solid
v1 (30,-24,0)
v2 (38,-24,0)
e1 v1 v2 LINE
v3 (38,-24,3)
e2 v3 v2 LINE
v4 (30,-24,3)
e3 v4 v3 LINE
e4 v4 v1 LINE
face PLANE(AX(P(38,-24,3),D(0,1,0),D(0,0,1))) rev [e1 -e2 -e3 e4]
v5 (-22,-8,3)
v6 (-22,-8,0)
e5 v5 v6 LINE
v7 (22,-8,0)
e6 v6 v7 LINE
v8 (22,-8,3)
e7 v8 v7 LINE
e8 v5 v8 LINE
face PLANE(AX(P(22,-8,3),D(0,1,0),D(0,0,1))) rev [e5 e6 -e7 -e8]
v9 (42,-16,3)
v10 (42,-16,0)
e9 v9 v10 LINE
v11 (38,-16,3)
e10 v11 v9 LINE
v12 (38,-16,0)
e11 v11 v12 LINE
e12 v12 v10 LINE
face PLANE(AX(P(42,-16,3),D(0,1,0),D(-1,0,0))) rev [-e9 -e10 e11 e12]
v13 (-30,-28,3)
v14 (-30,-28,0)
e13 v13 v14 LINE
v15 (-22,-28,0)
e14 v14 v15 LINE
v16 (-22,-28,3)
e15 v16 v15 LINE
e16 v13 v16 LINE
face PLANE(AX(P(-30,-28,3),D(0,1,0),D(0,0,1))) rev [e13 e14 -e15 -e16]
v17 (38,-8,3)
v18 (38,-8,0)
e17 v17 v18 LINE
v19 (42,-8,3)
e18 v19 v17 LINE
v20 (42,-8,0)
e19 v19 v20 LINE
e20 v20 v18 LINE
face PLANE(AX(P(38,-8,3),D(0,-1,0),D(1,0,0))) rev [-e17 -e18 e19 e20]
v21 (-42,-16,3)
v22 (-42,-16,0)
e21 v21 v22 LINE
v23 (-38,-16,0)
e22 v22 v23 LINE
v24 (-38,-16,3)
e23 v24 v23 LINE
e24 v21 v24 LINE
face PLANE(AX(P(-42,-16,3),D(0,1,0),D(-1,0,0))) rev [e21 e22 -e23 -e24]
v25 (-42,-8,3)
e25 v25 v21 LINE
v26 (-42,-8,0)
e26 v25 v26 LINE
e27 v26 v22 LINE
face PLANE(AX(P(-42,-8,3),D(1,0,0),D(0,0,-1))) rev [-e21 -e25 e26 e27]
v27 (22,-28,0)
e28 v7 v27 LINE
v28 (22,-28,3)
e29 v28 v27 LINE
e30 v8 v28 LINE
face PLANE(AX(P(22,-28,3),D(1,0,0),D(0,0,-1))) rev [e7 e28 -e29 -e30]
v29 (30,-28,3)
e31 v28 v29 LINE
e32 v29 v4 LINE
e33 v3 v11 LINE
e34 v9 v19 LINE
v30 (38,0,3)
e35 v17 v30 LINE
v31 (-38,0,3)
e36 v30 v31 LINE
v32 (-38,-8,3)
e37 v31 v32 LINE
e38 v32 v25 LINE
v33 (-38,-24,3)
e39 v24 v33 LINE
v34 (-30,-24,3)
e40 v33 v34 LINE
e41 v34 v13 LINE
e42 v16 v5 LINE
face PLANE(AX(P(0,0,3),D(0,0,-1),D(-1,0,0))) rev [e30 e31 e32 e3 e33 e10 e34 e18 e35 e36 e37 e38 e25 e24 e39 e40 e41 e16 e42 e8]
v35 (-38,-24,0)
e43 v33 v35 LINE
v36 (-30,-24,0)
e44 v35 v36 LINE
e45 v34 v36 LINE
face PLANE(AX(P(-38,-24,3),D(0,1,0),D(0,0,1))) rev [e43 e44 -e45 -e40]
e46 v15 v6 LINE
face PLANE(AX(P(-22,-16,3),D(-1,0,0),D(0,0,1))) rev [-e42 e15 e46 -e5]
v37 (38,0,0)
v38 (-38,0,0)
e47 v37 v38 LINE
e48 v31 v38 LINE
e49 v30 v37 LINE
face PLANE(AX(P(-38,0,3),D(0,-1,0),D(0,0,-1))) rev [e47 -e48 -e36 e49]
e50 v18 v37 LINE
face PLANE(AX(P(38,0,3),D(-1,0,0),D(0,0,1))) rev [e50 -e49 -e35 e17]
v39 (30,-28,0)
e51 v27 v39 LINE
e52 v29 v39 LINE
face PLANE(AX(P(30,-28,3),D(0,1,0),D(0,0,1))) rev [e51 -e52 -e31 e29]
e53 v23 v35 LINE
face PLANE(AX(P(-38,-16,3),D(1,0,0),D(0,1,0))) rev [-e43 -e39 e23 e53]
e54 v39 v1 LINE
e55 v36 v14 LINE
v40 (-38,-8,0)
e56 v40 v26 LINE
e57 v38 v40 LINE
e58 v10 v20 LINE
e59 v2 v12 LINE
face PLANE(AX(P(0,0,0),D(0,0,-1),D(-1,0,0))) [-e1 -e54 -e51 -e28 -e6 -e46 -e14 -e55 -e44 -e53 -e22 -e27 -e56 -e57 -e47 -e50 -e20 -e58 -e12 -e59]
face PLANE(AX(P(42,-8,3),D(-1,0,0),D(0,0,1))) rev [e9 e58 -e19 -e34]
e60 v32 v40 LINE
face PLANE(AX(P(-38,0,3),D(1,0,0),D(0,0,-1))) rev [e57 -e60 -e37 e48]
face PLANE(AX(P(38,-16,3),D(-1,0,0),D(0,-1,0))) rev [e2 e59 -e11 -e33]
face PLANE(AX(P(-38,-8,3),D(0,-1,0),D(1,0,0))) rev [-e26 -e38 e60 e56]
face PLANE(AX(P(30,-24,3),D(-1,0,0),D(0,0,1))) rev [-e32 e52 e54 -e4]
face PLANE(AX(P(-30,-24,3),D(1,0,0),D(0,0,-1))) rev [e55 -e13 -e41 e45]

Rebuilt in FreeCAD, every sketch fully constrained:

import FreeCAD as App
import Part
import Sketcher
from FreeCAD import Vector

doc = App.newDocument("Part")
body = doc.addObject("PartDesign::Body", "Body")

sketch1 = body.newObject("Sketcher::SketchObject", "Sketch")
sketch1.AttachmentSupport = (doc.getObject("XY_Plane"), [""])
sketch1.MapMode = "FlatFace"
sketch1.addGeometry(Part.LineSegment(Vector(38, 0, 0), Vector(-38, 0, 0)), False)
sketch1.addGeometry(Part.LineSegment(Vector(-38, 0, 0), Vector(-38, -8, 0)), False)
sketch1.addGeometry(Part.LineSegment(Vector(-38, -8, 0), Vector(-42, -8, 0)), False)
sketch1.addGeometry(Part.LineSegment(Vector(-42, -8, 0), Vector(-42, -16, 0)), False)
sketch1.addGeometry(Part.LineSegment(Vector(-42, -16, 0), Vector(-38, -16, 0)), False)
sketch1.addGeometry(Part.LineSegment(Vector(-38, -16, 0), Vector(-38, -24, 0)), False)
sketch1.addGeometry(Part.LineSegment(Vector(-38, -24, 0), Vector(-30, -24, 0)), False)
sketch1.addGeometry(Part.LineSegment(Vector(-30, -24, 0), Vector(-30, -28, 0)), False)
sketch1.addGeometry(Part.LineSegment(Vector(-30, -28, 0), Vector(-22, -28, 0)), False)
sketch1.addGeometry(Part.LineSegment(Vector(-22, -28, 0), Vector(-22, -8, 0)), False)
sketch1.addGeometry(Part.LineSegment(Vector(-22, -8, 0), Vector(22, -8, 0)), False)
sketch1.addGeometry(Part.LineSegment(Vector(22, -8, 0), Vector(22, -28, 0)), False)
sketch1.addGeometry(Part.LineSegment(Vector(22, -28, 0), Vector(30, -28, 0)), False)
sketch1.addGeometry(Part.LineSegment(Vector(30, -28, 0), Vector(30, -24, 0)), False)
sketch1.addGeometry(Part.LineSegment(Vector(30, -24, 0), Vector(38, -24, 0)), False)
sketch1.addGeometry(Part.LineSegment(Vector(38, -24, 0), Vector(38, -16, 0)), False)
sketch1.addGeometry(Part.LineSegment(Vector(38, -16, 0), Vector(42, -16, 0)), False)
sketch1.addGeometry(Part.LineSegment(Vector(42, -16, 0), Vector(42, -8, 0)), False)
sketch1.addGeometry(Part.LineSegment(Vector(42, -8, 0), Vector(38, -8, 0)), False)
sketch1.addGeometry(Part.LineSegment(Vector(38, -8, 0), Vector(38, 0, 0)), False)
sketch1.addConstraint(Sketcher.Constraint("Coincident", 0, 2, 1, 1))
sketch1.addConstraint(Sketcher.Constraint("Coincident", 1, 2, 2, 1))
sketch1.addConstraint(Sketcher.Constraint("Coincident", 2, 2, 3, 1))
sketch1.addConstraint(Sketcher.Constraint("Coincident", 3, 2, 4, 1))
sketch1.addConstraint(Sketcher.Constraint("Coincident", 4, 2, 5, 1))
sketch1.addConstraint(Sketcher.Constraint("Coincident", 5, 2, 6, 1))
sketch1.addConstraint(Sketcher.Constraint("Coincident", 6, 2, 7, 1))
sketch1.addConstraint(Sketcher.Constraint("Coincident", 7, 2, 8, 1))
sketch1.addConstraint(Sketcher.Constraint("Coincident", 8, 2, 9, 1))
sketch1.addConstraint(Sketcher.Constraint("Coincident", 9, 2, 10, 1))
sketch1.addConstraint(Sketcher.Constraint("Coincident", 10, 2, 11, 1))
sketch1.addConstraint(Sketcher.Constraint("Coincident", 11, 2, 12, 1))
sketch1.addConstraint(Sketcher.Constraint("Coincident", 12, 2, 13, 1))
sketch1.addConstraint(Sketcher.Constraint("Coincident", 13, 2, 14, 1))
sketch1.addConstraint(Sketcher.Constraint("Coincident", 14, 2, 15, 1))
sketch1.addConstraint(Sketcher.Constraint("Coincident", 15, 2, 16, 1))
sketch1.addConstraint(Sketcher.Constraint("Coincident", 16, 2, 17, 1))
sketch1.addConstraint(Sketcher.Constraint("Coincident", 17, 2, 18, 1))
sketch1.addConstraint(Sketcher.Constraint("Coincident", 18, 2, 19, 1))
sketch1.addConstraint(Sketcher.Constraint("Coincident", 19, 2, 0, 1))
sketch1.addConstraint(Sketcher.Constraint("Horizontal", 0))
sketch1.addConstraint(Sketcher.Constraint("Vertical", 1))
sketch1.addConstraint(Sketcher.Constraint("Horizontal", 2))
sketch1.addConstraint(Sketcher.Constraint("Vertical", 3))
sketch1.addConstraint(Sketcher.Constraint("Horizontal", 4))
sketch1.addConstraint(Sketcher.Constraint("Vertical", 5))
sketch1.addConstraint(Sketcher.Constraint("Horizontal", 6))
sketch1.addConstraint(Sketcher.Constraint("Vertical", 7))
sketch1.addConstraint(Sketcher.Constraint("Horizontal", 8))
sketch1.addConstraint(Sketcher.Constraint("Vertical", 9))
sketch1.addConstraint(Sketcher.Constraint("Horizontal", 10))
sketch1.addConstraint(Sketcher.Constraint("Vertical", 11))
sketch1.addConstraint(Sketcher.Constraint("Horizontal", 12))
sketch1.addConstraint(Sketcher.Constraint("Vertical", 13))
sketch1.addConstraint(Sketcher.Constraint("Horizontal", 14))
sketch1.addConstraint(Sketcher.Constraint("Vertical", 15))
sketch1.addConstraint(Sketcher.Constraint("Horizontal", 16))
sketch1.addConstraint(Sketcher.Constraint("Vertical", 17))
sketch1.addConstraint(Sketcher.Constraint("Horizontal", 18))
sketch1.addConstraint(Sketcher.Constraint("Vertical", 19))
sketch1.addConstraint(Sketcher.Constraint("Symmetric", 0, 2, 19, 2, -1, 1))
sketch1.addConstraint(Sketcher.Constraint("Symmetric", 8, 2, 11, 2, -2))
sketch1.addConstraint(Sketcher.Constraint("Symmetric", 6, 2, 13, 2, -2))
sketch1.addConstraint(Sketcher.Constraint("Symmetric", 4, 2, 15, 2, -2))
sketch1.addConstraint(Sketcher.Constraint("Symmetric", 2, 2, 17, 2, -2))
sketch1.addConstraint(Sketcher.Constraint("Horizontal", 2, 2, 9, 2))
sketch1.addConstraint(Sketcher.Constraint("Vertical", 1, 2, 4, 2))
sketch1.addConstraint(Sketcher.Constraint("Equal", 6, 8))
sketch1.addConstraint(Sketcher.Constraint("Equal", 14, 1))
sketch1.addConstraint(Sketcher.Constraint("Equal", 1, 3))
sketch1.addConstraint(Sketcher.Constraint("Equal", 3, 5))
sketch1.addConstraint(Sketcher.Constraint("Equal", 18, 7))
sketch1.addConstraint(Sketcher.Constraint("DistanceX", 0, 2, 0, 1, 76.0))
sketch1.addConstraint(Sketcher.Constraint("DistanceX", 2, 2, 2, 1, 4.0))
sketch1.addConstraint(Sketcher.Constraint("DistanceX", 6, 1, 6, 2, 8.0))
pad1 = body.newObject("PartDesign::Pad", "Pad")
pad1.Profile = sketch1
pad1.Length = 3

doc.recompute()
